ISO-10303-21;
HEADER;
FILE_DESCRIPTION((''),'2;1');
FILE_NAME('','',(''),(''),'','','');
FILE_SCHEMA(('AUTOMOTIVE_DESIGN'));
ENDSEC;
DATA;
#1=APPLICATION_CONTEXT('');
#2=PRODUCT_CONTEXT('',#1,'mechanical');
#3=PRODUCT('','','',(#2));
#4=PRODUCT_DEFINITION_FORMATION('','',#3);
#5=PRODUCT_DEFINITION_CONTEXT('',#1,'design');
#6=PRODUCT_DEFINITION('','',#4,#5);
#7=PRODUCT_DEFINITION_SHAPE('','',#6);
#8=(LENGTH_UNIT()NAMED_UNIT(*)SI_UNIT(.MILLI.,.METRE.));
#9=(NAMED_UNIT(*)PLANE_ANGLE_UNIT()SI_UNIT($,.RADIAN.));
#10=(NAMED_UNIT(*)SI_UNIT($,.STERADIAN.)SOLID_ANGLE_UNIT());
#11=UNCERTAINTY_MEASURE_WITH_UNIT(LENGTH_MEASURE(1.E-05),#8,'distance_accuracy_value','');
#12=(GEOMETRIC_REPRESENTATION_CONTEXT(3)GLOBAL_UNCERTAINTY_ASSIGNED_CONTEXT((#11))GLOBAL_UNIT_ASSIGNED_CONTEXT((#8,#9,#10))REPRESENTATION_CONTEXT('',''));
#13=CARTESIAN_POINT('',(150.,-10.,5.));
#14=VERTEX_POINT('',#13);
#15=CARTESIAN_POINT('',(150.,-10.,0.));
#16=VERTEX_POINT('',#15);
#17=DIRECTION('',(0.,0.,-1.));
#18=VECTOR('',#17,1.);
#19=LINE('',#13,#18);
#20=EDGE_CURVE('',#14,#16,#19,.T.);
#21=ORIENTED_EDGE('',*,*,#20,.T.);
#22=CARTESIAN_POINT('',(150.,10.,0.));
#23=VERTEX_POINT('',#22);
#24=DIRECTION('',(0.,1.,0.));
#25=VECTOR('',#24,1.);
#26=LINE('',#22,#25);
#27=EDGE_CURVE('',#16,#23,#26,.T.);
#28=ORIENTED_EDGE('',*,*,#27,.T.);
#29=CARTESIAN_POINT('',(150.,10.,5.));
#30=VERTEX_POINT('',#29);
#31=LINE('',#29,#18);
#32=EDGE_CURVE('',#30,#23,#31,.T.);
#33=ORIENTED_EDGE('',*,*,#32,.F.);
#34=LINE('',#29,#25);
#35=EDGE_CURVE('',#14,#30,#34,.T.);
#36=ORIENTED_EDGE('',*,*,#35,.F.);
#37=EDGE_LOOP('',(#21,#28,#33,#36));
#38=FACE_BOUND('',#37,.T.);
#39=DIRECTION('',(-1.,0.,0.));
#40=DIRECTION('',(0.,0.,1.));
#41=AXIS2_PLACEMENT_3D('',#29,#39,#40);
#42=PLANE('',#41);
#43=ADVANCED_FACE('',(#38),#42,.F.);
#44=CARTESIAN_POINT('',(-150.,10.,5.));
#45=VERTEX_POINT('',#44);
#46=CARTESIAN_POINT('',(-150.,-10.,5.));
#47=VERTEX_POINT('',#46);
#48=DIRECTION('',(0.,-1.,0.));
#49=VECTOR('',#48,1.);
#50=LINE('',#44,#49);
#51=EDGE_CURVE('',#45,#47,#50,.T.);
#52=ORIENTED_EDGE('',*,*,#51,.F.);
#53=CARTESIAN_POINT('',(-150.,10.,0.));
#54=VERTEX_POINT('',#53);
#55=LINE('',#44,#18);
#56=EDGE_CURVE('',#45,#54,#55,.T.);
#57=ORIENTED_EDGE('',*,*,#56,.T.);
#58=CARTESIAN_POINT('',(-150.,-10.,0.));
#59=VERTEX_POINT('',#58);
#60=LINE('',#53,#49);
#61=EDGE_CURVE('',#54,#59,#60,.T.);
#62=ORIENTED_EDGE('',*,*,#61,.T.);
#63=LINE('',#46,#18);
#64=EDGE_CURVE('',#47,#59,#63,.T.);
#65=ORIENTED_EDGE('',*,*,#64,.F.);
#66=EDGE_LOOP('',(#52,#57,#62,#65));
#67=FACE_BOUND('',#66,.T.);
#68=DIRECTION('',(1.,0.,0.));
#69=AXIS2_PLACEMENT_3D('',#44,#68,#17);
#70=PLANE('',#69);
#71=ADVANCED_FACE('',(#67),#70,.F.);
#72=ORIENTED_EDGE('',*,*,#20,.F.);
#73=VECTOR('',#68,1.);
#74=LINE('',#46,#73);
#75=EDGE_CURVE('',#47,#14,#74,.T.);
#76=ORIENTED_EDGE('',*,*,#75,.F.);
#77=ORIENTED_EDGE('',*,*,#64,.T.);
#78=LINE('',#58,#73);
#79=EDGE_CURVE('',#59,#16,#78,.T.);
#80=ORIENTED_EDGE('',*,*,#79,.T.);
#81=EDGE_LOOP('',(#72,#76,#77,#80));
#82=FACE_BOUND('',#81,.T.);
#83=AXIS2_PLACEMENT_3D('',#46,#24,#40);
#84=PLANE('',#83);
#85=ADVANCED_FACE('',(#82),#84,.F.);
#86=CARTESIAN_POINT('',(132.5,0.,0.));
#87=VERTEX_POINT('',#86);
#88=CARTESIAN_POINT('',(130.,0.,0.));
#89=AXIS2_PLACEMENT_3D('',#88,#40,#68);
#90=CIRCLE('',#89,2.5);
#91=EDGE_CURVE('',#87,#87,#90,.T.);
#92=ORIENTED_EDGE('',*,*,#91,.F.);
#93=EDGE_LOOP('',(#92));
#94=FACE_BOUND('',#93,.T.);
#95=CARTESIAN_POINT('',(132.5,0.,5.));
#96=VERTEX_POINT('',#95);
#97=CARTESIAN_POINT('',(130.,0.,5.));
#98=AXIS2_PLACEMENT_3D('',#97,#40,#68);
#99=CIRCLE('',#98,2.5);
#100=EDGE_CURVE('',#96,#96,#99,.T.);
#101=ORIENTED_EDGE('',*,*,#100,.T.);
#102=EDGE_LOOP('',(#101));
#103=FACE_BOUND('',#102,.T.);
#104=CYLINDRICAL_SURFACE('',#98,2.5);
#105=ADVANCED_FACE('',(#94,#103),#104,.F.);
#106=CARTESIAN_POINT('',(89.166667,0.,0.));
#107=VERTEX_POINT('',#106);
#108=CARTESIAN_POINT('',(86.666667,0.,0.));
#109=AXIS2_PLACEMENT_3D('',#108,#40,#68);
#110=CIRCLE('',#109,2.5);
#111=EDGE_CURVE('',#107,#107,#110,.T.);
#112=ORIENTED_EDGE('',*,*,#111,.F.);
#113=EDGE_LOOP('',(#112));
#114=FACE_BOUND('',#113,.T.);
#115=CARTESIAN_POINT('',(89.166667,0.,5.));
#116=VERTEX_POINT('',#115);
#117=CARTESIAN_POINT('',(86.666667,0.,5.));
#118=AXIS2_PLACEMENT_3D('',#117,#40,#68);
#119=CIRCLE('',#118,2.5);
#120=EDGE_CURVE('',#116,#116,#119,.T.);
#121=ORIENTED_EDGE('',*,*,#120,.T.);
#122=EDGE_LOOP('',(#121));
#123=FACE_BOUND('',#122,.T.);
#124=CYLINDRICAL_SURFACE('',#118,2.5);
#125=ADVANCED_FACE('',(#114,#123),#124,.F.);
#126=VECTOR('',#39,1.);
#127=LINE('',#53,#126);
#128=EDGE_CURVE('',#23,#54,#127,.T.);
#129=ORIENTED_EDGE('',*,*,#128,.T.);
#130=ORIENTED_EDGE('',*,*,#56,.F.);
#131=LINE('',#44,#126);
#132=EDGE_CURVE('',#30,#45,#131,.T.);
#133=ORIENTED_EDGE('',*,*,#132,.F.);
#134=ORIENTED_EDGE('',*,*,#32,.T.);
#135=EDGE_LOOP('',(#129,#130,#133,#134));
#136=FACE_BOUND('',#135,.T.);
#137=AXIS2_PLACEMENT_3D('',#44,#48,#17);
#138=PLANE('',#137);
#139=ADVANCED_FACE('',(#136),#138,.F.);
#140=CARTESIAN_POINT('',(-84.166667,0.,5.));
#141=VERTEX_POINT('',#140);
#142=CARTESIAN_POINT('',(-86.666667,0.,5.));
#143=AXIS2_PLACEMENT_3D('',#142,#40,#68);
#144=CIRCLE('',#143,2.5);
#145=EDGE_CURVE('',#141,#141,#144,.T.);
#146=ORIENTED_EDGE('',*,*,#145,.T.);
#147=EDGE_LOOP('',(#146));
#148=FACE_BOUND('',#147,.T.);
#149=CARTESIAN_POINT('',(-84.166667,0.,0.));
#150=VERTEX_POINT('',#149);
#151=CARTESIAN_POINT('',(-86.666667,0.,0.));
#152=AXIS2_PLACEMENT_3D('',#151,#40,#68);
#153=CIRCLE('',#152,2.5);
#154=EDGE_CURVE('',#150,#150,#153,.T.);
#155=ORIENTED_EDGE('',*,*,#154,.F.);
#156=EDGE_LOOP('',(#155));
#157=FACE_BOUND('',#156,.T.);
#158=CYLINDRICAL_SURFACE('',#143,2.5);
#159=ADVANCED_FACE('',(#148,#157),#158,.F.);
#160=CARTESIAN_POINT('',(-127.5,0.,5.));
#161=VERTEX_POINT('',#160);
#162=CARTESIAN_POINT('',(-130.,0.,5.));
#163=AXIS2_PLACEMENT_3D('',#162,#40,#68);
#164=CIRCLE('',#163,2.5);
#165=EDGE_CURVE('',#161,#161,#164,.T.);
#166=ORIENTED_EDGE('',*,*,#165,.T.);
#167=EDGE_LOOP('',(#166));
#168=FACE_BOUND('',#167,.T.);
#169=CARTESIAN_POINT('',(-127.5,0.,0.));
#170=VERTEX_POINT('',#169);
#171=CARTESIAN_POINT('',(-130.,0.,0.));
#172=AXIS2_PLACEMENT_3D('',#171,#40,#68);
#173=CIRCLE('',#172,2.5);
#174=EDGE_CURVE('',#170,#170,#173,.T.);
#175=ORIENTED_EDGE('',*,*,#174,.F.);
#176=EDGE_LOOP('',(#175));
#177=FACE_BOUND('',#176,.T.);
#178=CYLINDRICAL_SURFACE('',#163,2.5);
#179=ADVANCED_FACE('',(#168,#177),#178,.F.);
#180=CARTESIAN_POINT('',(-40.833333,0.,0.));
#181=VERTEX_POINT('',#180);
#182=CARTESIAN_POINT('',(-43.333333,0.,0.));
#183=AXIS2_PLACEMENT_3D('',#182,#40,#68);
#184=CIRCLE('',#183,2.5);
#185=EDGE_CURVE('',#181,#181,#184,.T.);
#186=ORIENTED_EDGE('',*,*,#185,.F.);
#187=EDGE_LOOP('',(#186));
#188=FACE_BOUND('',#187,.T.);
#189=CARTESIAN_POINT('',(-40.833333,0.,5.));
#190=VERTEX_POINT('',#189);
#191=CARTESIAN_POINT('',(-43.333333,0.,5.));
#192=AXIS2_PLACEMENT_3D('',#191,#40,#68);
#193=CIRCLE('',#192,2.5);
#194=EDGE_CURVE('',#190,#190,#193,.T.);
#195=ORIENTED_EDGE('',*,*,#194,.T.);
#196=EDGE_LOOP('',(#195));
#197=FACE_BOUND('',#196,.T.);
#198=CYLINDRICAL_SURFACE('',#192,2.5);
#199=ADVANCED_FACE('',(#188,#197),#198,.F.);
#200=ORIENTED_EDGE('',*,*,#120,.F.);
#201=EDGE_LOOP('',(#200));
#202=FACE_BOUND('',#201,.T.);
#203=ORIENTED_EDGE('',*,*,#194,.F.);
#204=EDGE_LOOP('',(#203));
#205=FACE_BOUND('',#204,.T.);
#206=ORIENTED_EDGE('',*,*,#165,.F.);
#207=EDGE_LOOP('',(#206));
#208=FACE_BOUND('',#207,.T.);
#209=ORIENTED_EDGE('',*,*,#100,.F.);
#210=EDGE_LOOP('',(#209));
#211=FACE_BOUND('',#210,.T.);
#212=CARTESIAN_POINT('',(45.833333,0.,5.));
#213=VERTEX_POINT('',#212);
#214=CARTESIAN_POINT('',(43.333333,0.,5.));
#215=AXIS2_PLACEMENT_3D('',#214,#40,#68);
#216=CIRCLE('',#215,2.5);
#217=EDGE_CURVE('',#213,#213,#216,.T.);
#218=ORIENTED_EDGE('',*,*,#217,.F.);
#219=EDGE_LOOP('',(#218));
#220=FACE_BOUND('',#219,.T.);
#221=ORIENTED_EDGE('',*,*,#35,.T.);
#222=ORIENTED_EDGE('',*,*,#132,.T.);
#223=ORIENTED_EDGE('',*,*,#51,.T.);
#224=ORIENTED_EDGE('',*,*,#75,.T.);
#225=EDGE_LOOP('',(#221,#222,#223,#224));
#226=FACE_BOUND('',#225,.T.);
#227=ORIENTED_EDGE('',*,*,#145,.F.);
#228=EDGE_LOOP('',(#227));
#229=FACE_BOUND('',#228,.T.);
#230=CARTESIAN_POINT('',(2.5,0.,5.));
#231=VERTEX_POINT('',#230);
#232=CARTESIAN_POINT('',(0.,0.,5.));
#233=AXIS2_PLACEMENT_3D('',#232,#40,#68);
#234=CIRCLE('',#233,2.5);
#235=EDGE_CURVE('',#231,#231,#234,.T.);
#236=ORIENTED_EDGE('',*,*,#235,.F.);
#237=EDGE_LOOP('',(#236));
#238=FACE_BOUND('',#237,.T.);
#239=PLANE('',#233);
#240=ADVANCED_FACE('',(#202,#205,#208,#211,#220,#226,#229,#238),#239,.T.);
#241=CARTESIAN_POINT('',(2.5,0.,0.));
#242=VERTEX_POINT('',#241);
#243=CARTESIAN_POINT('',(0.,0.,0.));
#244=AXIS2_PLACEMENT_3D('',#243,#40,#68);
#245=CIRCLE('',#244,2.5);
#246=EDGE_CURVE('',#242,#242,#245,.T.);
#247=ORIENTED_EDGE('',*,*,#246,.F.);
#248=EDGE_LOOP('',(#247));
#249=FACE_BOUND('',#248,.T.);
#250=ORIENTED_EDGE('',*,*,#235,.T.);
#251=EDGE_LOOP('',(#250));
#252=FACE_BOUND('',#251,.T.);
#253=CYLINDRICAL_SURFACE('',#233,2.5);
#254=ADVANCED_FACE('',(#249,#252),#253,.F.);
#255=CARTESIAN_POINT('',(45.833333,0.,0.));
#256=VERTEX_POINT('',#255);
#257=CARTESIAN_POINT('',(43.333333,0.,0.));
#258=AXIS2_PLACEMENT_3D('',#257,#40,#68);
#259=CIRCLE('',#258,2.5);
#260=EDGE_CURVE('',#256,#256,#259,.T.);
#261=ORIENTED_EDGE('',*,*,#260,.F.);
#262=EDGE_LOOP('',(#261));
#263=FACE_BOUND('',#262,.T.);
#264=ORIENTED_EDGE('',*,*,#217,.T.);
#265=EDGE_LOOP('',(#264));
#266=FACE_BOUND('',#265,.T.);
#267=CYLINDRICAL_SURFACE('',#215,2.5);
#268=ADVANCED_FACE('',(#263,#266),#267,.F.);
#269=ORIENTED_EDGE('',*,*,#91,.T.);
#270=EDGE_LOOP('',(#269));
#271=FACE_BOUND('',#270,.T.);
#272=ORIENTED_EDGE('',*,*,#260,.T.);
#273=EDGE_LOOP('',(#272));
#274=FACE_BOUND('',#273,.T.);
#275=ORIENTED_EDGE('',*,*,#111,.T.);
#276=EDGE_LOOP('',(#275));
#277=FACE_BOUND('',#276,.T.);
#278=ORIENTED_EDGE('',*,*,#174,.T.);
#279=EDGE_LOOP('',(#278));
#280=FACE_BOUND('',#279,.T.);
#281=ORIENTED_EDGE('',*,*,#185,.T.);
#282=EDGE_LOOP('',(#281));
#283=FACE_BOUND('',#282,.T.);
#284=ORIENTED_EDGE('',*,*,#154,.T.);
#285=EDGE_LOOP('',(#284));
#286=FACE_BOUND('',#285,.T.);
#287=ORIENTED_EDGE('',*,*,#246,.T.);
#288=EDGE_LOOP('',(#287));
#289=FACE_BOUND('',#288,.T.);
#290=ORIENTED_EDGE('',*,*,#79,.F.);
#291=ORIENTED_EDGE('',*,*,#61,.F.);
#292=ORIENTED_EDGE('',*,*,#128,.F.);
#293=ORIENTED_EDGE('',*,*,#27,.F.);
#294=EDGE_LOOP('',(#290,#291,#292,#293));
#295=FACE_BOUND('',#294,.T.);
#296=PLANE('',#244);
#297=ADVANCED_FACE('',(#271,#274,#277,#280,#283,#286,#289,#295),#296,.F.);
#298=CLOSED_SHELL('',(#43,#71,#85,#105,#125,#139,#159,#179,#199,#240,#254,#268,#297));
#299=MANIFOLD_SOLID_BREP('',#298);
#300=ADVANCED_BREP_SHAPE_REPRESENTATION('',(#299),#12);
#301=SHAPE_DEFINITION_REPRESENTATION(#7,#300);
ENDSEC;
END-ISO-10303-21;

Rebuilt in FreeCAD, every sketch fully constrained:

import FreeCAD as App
import Part
import Sketcher

V = App.Vector
Q = App.Units.Quantity


def add_polygon(sketch, points):
    """Adds a closed chain of lines whose ends are joined by coincident constraints."""
    first, n = sketch.GeometryCount, len(points)
    for a, b in zip(points, points[1:] + points[:1]):
        sketch.addGeometry(Part.LineSegment(App.Vector(*a, 0), App.Vector(*b, 0)), False)
    for i in range(n):
        sketch.addConstraint(Sketcher.Constraint("Coincident", first + i, 2, first + (i + 1) % n, 1))

doc = App.newDocument("Part")
body = doc.addObject("PartDesign::Body", "Body")

sketch1 = doc.addObject("Sketcher::SketchObject", "Sketch")
body.addObject(sketch1)
sketch1.AttachmentSupport = (doc.XY_Plane, [""])
sketch1.MapMode = "FlatFace"
add_polygon(sketch1, [(-150, 10), (-150, -10), (150, -10), (150, 10)])
sketch1.addConstraint([
    Sketcher.Constraint("Vertical", 0),
    Sketcher.Constraint("Horizontal", 1),
    Sketcher.Constraint("Vertical", 2),
    Sketcher.Constraint("Horizontal", 3),
    Sketcher.Constraint("Symmetric", 0, 2, 2, 2, -1, 1),
    Sketcher.Constraint("DistanceX", 1, 1, 1, 2, Q("300 mm")),
    Sketcher.Constraint("DistanceY", 0, 2, 0, 1, Q("20 mm")),
])
pad1 = doc.addObject("PartDesign::Pad", "Pad")
body.addObject(pad1)
pad1.Profile = sketch1
pad1.Length = 5

sketch2 = doc.addObject("Sketcher::SketchObject", "Sketch001")
body.addObject(sketch2)
sketch2.AttachmentSupport = (doc.XY_Plane, [""])
sketch2.MapMode = "FlatFace"
sketch2.AttachmentOffset = App.Placement(V(0, 0, 5), App.Rotation())
sketch2.addGeometry(Part.Circle(V(-130, 0, 0), V(0, 0, 1), 2.5), False)
sketch2.addConstraint([
    Sketcher.Constraint("PointOnObject", 0, 3, -1),
    Sketcher.Constraint("Diameter", 0, Q("5 mm")),
    Sketcher.Constraint("DistanceX", 0, 3, -1, 1, Q("130 mm")),
])
doc.recompute()
hole = doc.addObject("PartDesign::Hole", "Hole")
body.addObject(hole)
hole.Profile = sketch2
hole.ThreadType = "None"
hole.Diameter = 5
hole.DepthType = "ThroughAll"

sketch3 = doc.addObject("Sketcher::SketchObject", "Sketch002")
body.addObject(sketch3)
sketch3.AttachmentSupport = (doc.XY_Plane, [""])
sketch3.MapMode = "FlatFace"
sketch3.AttachmentOffset = App.Placement(V(0, 0, 5), App.Rotation())
sketch3.addGeometry(Part.Circle(V(130, 0, 0), V(0, 0, 1), 2.5), False)
sketch3.addConstraint([
    Sketcher.Constraint("PointOnObject", 0, 3, -1),
    Sketcher.Constraint("Diameter", 0, Q("5 mm")),
    Sketcher.Constraint("DistanceX", -1, 1, 0, 3, Q("130 mm")),
])
doc.recompute()
hole2 = doc.addObject("PartDesign::Hole", "Hole001")
body.addObject(hole2)
hole2.Profile = sketch3
hole2.ThreadType = "None"
hole2.Diameter = 5
hole2.DepthType = "ThroughAll"
doc.recompute()

linearpattern = doc.addObject("PartDesign::LinearPattern", "LinearPattern")
body.addObject(linearpattern)
linearpattern.Originals = [hole]
linearpattern.Direction = (doc.X_Axis, [""])
linearpattern.Mode = "offset"
linearpattern.Offset = 43.333333
linearpattern.Occurrences = 6
body.Tip = linearpattern

doc.recompute()
